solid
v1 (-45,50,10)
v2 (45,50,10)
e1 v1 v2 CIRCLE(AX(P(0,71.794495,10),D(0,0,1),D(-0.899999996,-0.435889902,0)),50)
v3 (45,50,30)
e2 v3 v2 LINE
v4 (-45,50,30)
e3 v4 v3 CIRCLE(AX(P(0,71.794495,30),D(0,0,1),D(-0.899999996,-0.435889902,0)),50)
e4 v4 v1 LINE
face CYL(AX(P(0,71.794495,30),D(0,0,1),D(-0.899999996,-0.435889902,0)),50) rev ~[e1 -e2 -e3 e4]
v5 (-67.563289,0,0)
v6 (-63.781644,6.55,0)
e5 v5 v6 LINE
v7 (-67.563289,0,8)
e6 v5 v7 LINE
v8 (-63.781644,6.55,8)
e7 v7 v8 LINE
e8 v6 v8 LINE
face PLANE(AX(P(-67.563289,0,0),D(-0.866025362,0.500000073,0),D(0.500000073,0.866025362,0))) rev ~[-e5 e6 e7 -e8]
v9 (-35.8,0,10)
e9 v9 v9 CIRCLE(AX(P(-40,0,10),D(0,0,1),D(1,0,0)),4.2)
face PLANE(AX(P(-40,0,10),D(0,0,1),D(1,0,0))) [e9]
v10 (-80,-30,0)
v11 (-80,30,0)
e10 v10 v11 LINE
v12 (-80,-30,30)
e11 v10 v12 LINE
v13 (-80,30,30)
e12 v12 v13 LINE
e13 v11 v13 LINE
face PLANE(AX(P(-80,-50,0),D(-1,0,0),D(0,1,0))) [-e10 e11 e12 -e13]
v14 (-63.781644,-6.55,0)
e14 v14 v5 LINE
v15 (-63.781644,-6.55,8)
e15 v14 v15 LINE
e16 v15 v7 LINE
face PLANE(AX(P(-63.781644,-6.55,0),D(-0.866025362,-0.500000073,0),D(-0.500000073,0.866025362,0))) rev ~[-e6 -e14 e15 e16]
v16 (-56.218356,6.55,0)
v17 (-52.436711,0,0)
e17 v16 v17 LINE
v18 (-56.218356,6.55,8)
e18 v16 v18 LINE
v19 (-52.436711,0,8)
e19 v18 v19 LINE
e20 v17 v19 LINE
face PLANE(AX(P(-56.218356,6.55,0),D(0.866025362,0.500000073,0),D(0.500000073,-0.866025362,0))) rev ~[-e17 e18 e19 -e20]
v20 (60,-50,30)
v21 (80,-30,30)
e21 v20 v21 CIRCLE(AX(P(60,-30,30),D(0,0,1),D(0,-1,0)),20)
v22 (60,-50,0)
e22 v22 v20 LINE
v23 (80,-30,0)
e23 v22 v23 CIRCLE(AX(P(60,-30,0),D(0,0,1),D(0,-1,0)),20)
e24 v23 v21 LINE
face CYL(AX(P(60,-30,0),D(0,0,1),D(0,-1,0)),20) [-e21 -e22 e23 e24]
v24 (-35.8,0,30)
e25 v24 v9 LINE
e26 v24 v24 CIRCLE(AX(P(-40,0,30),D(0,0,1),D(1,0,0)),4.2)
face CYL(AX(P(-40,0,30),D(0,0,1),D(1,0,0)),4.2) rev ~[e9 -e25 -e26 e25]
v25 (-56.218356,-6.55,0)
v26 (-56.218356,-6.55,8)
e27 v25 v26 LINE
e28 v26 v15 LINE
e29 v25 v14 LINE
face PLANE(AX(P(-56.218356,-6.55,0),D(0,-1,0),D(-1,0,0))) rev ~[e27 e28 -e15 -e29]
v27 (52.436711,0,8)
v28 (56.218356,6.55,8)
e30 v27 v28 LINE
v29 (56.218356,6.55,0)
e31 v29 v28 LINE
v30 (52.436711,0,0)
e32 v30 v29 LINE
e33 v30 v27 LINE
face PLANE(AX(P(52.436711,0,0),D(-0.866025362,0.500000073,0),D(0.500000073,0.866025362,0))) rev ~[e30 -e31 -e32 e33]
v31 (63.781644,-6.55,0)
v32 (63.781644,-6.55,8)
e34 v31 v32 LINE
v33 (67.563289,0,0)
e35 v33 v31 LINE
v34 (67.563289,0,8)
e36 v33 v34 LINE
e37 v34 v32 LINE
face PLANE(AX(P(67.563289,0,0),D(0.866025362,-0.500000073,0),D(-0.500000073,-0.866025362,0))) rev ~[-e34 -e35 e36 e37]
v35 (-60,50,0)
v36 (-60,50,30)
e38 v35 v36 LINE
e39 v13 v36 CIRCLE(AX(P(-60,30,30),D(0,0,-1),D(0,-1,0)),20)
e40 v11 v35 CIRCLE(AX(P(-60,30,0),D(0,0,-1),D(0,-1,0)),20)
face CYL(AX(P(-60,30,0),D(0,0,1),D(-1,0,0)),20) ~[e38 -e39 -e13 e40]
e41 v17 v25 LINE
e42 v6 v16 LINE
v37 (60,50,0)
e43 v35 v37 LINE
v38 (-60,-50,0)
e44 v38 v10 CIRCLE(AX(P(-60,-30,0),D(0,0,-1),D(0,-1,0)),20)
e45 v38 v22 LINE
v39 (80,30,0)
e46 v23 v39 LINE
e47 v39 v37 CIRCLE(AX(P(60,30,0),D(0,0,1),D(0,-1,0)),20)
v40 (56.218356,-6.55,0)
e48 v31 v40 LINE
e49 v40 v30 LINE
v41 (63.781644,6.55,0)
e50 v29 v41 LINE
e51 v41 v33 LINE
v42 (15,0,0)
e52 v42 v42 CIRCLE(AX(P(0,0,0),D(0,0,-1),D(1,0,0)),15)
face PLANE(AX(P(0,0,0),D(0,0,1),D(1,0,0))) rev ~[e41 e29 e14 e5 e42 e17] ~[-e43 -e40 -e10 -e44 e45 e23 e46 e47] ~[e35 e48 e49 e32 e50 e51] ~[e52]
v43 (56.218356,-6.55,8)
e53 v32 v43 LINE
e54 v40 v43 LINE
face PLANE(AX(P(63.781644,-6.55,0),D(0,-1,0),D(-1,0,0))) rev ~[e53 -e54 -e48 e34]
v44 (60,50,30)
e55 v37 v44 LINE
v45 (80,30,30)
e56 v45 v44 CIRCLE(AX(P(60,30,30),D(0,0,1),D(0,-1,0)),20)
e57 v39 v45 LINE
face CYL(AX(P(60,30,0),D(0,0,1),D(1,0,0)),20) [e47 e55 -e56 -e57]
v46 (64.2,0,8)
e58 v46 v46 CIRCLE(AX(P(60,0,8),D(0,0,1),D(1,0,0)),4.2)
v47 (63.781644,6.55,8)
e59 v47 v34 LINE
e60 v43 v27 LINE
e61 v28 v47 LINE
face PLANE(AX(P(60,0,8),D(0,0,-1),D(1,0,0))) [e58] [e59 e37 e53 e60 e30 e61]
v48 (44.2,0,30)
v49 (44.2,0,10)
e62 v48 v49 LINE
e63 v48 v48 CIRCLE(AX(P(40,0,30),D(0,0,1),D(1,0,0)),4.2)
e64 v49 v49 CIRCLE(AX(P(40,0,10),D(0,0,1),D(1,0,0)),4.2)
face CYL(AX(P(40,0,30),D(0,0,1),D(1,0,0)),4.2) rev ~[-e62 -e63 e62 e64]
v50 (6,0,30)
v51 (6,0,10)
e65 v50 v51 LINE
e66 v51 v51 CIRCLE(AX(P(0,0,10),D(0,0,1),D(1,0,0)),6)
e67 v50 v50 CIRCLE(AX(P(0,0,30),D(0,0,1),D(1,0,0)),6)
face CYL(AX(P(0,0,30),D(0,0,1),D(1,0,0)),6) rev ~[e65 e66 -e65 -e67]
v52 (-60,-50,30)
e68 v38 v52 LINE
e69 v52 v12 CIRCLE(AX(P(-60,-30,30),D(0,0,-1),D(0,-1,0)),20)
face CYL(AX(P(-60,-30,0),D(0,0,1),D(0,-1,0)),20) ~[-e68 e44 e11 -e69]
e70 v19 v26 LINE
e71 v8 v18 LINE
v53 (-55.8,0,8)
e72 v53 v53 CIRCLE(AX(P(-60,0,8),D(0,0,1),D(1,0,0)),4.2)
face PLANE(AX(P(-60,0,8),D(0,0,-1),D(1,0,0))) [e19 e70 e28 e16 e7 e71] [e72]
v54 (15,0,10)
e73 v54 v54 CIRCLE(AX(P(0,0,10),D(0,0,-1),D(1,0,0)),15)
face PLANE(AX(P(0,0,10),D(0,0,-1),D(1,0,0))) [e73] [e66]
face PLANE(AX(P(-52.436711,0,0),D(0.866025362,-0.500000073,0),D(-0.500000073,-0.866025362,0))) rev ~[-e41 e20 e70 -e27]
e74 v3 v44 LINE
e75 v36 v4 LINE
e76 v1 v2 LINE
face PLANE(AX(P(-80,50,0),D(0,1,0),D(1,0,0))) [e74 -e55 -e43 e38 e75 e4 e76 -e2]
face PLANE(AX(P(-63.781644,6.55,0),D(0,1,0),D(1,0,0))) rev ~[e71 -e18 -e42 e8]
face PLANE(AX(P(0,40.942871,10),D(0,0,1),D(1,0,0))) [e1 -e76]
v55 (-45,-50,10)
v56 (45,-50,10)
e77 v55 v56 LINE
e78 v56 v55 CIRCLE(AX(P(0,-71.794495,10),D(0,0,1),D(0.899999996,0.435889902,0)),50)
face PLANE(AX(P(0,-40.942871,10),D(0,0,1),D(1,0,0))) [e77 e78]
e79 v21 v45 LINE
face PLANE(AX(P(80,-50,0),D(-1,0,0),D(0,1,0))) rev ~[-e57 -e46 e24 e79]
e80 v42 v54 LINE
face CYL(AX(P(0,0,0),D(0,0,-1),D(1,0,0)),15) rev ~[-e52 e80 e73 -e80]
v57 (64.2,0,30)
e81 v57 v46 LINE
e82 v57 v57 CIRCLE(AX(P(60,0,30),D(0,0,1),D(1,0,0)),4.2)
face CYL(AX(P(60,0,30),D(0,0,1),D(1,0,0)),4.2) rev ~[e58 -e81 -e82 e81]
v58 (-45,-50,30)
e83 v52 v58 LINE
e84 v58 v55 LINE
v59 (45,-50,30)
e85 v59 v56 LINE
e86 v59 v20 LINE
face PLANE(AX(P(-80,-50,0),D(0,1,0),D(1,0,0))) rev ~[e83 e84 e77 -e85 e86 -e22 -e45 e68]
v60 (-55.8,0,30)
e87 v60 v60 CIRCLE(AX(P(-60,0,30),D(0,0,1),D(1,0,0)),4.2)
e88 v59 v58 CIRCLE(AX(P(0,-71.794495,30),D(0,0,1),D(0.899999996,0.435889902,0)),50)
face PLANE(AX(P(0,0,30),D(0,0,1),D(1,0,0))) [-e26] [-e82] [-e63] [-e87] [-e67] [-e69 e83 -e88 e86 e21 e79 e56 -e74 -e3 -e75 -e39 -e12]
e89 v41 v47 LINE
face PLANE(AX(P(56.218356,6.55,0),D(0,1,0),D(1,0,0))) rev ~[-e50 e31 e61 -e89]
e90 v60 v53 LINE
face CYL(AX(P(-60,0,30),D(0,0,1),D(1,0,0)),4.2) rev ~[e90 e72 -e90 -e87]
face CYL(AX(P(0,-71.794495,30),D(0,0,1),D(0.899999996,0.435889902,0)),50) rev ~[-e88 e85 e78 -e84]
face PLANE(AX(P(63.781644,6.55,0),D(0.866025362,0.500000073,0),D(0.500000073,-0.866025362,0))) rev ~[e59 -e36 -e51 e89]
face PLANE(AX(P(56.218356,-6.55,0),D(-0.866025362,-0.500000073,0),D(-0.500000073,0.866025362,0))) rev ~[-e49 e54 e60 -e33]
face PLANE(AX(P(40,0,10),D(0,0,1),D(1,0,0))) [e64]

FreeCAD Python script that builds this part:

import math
import FreeCAD as App
import Part
import Sketcher
from FreeCAD import Vector
Q = App.Units.Quantity


def edges_at(feature, points):
    """Names of the edges that pass closest to the given points."""
    edges = feature.Shape.Edges
    near = lambda p: min(range(len(edges)), key=lambda i: edges[i].distToShape(Part.Vertex(*p))[0])
    return sorted({f"Edge{near(p) + 1}" for p in points})

doc = App.newDocument("Part")
body = doc.addObject("PartDesign::Body", "Body")

sketch1 = body.newObject("Sketcher::SketchObject", "Sketch")
sketch1.AttachmentSupport = (doc.getObject("XY_Plane"), [""])
sketch1.MapMode = "FlatFace"
sketch1.addGeometry(Part.LineSegment(Vector(-80, 50, 0), Vector(-80, -50, 0)), False)
sketch1.addGeometry(Part.LineSegment(Vector(-80, -50, 0), Vector(80, -50, 0)), False)
sketch1.addGeometry(Part.LineSegment(Vector(80, -50, 0), Vector(80, 50, 0)), False)
sketch1.addGeometry(Part.LineSegment(Vector(80, 50, 0), Vector(-80, 50, 0)), False)
sketch1.addConstraint(Sketcher.Constraint("Coincident", 0, 2, 1, 1))
sketch1.addConstraint(Sketcher.Constraint("Coincident", 1, 2, 2, 1))
sketch1.addConstraint(Sketcher.Constraint("Coincident", 2, 2, 3, 1))
sketch1.addConstraint(Sketcher.Constraint("Coincident", 3, 2, 0, 1))
sketch1.addConstraint(Sketcher.Constraint("Vertical", 0))
sketch1.addConstraint(Sketcher.Constraint("Horizontal", 1))
sketch1.addConstraint(Sketcher.Constraint("Vertical", 2))
sketch1.addConstraint(Sketcher.Constraint("Horizontal", 3))
sketch1.addConstraint(Sketcher.Constraint("Symmetric", 0, 2, 2, 2, -1, 1))
sketch1.addConstraint(Sketcher.Constraint("DistanceX", 1, 1, 1, 2, Q("160 mm")))
sketch1.addConstraint(Sketcher.Constraint("DistanceY", 0, 2, 0, 1, Q("100 mm")))
pad1 = body.newObject("PartDesign::Pad", "Pad")
pad1.Profile = sketch1
pad1.Length = 30

sketch2 = body.newObject("Sketcher::SketchObject", "Sketch001")
sketch2.AttachmentSupport = (doc.getObject("XY_Plane"), [""])
sketch2.MapMode = "FlatFace"
sketch2.AttachmentOffset = App.Placement(Vector(0, 0, 30), App.Rotation())
sketch2.addGeometry(Part.Circle(Vector(0, 0, 0), Vector(0, 0, 1), 6), False)
sketch2.addGeometry(Part.Circle(Vector(60, 0, 0), Vector(0, 0, 1), 4.2), False)
sketch2.addGeometry(Part.Circle(Vector(-60, 0, 0), Vector(0, 0, 1), 4.2), False)
sketch2.addConstraint(Sketcher.Constraint("Coincident", 0, 3, -1, 1))
sketch2.addConstraint(Sketcher.Constraint("Equal", 1, 2))
sketch2.addConstraint(Sketcher.Constraint("Symmetric", 1, 3, 2, 3, -1, 1))
sketch2.addConstraint(Sketcher.Constraint("PointOnObject", 1, 3, -1))
sketch2.addConstraint(Sketcher.Constraint("Diameter", 0, Q("12 mm")))
sketch2.addConstraint(Sketcher.Constraint("Diameter", 1, Q("8.4 mm")))
sketch2.addConstraint(Sketcher.Constraint("DistanceX", -1, 1, 1, 3, Q("60 mm")))
pocket1 = body.newObject("PartDesign::Pocket", "Pocket")
pocket1.Profile = sketch2
pocket1.Length = 30

sketch3 = body.newObject("Sketcher::SketchObject", "Sketch002")
sketch3.AttachmentSupport = (doc.getObject("XY_Plane"), [""])
sketch3.MapMode = "FlatFace"
sketch3.addGeometry(Part.LineSegment(Vector(-52.436711, 0, 0), Vector(-56.218356, -6.55, 0)), False)
sketch3.addGeometry(Part.LineSegment(Vector(-56.218356, -6.55, 0), Vector(-63.781644, -6.55, 0)), False)
sketch3.addGeometry(Part.LineSegment(Vector(-63.781644, -6.55, 0), Vector(-67.563289, 0, 0)), False)
sketch3.addGeometry(Part.LineSegment(Vector(-67.563289, 0, 0), Vector(-63.781644, 6.55, 0)), False)
sketch3.addGeometry(Part.LineSegment(Vector(-63.781644, 6.55, 0), Vector(-56.218356, 6.55, 0)), False)
sketch3.addGeometry(Part.LineSegment(Vector(-56.218356, 6.55, 0), Vector(-52.436711, 0, 0)), False)
sketch3.addGeometry(Part.LineSegment(Vector(67.563289, 0, 0), Vector(63.781644, -6.55, 0)), False)
sketch3.addGeometry(Part.LineSegment(Vector(63.781644, -6.55, 0), Vector(56.218356, -6.55, 0)), False)
sketch3.addGeometry(Part.LineSegment(Vector(56.218356, -6.55, 0), Vector(52.436711, 0, 0)), False)
sketch3.addGeometry(Part.LineSegment(Vector(52.436711, 0, 0), Vector(56.218356, 6.55, 0)), False)
sketch3.addGeometry(Part.LineSegment(Vector(56.218356, 6.55, 0), Vector(63.781644, 6.55, 0)), False)
sketch3.addGeometry(Part.LineSegment(Vector(63.781644, 6.55, 0), Vector(67.563289, 0, 0)), False)
sketch3.addConstraint(Sketcher.Constraint("Coincident", 0, 2, 1, 1))
sketch3.addConstraint(Sketcher.Constraint("Coincident", 1, 2, 2, 1))
sketch3.addConstraint(Sketcher.Constraint("Coincident", 2, 2, 3, 1))
sketch3.addConstraint(Sketcher.Constraint("Coincident", 3, 2, 4, 1))
sketch3.addConstraint(Sketcher.Constraint("Coincident", 4, 2, 5, 1))
sketch3.addConstraint(Sketcher.Constraint("Coincident", 5, 2, 0, 1))
sketch3.addConstraint(Sketcher.Constraint("Coincident", 6, 2, 7, 1))
sketch3.addConstraint(Sketcher.Constraint("Coincident", 7, 2, 8, 1))
sketch3.addConstraint(Sketcher.Constraint("Coincident", 8, 2, 9, 1))
sketch3.addConstraint(Sketcher.Constraint("Coincident", 9, 2, 10, 1))
sketch3.addConstraint(Sketcher.Constraint("Coincident", 10, 2, 11, 1))
sketch3.addConstraint(Sketcher.Constraint("Coincident", 11, 2, 6, 1))
sketch3.addConstraint(Sketcher.Constraint("Horizontal", 1))
sketch3.addConstraint(Sketcher.Constraint("Horizontal", 4))
sketch3.addConstraint(Sketcher.Constraint("Horizontal", 7))
sketch3.addConstraint(Sketcher.Constraint("Horizontal", 10))
sketch3.addConstraint(Sketcher.Constraint("Symmetric", 3, 2, 6, 2, -1, 1))
sketch3.addConstraint(Sketcher.Constraint("Symmetric", 5, 2, 8, 2, -1, 1))
sketch3.addConstraint(Sketcher.Constraint("Symmetric", 0, 2, 9, 2, -1, 1))
sketch3.addConstraint(Sketcher.Constraint("Symmetric", 2, 2, 11, 2, -1, 1))
sketch3.addConstraint(Sketcher.Constraint("Symmetric", 1, 2, 6, 2, -2))
sketch3.addConstraint(Sketcher.Constraint("PointOnObject", 2, 2, -1))
sketch3.addConstraint(Sketcher.Constraint("PointOnObject", 5, 2, -1))
sketch3.addConstraint(Sketcher.Constraint("Parallel", 0, 3))
sketch3.addConstraint(Sketcher.Constraint("Parallel", 2, 5))
sketch3.addConstraint(Sketcher.Constraint("Parallel", 5, 8))
sketch3.addConstraint(Sketcher.Constraint("Parallel", 8, 11))
sketch3.addConstraint(Sketcher.Constraint("Angle", 0, Q("-120.000005 deg")))
sketch3.addConstraint(Sketcher.Constraint("DistanceX", 0, 2, 6, 2, Q("120 mm")))
sketch3.addConstraint(Sketcher.Constraint("DistanceY", 1, 2, 3, 2, Q("13.1 mm")))
sketch3.addConstraint(Sketcher.Constraint("DistanceX", 1, 2, 1, 1, Q("7.563288 mm")))
pocket2 = body.newObject("PartDesign::Pocket", "Pocket001")
pocket2.Profile = sketch3
pocket2.Length = 8
pocket2.Reversed = True

sketch4 = body.newObject("Sketcher::SketchObject", "Sketch003")
sketch4.AttachmentSupport = (doc.getObject("XY_Plane"), [""])
sketch4.MapMode = "FlatFace"
sketch4.addGeometry(Part.Circle(Vector(0, 0, 0), Vector(0, 0, 1), 15), False)
sketch4.addConstraint(Sketcher.Constraint("Coincident", 0, 3, -1, 1))
sketch4.addConstraint(Sketcher.Constraint("Diameter", 0, Q("30 mm")))
pocket3 = body.newObject("PartDesign::Pocket", "Pocket002")
pocket3.Profile = sketch4
pocket3.Length = 10
pocket3.Reversed = True
doc.recompute()

fillet = body.newObject("PartDesign::Fillet", "Fillet")
fillet.Base = (pocket3, edges_at(pocket3, [(-80, 50, 15)]))
fillet.Radius = 20

sketch5 = body.newObject("Sketcher::SketchObject", "Sketch004")
sketch5.AttachmentSupport = (doc.getObject("XY_Plane"), [""])
sketch5.MapMode = "FlatFace"
sketch5.AttachmentOffset = App.Placement(Vector(0, 0, 30), App.Rotation())
sketch5.addGeometry(Part.ArcOfCircle(Part.Circle(Vector(0, 71.794495, 0), Vector(0, 0, 1), 50), math.radians(-154.158067), math.radians(-25.841933)), False)
sketch5.addGeometry(Part.LineSegment(Vector(45, 50, 0), Vector(-45, 50, 0)), False)
sketch5.addGeometry(Part.ArcOfCircle(Part.Circle(Vector(0, -71.794495, 0), Vector(0, 0, 1), 50), math.radians(25.841933), math.radians(154.158067)), False)
sketch5.addGeometry(Part.LineSegment(Vector(-45, -50, 0), Vector(45, -50, 0)), False)
sketch5.addConstraint(Sketcher.Constraint("Coincident", 0, 1, 1, 2))
sketch5.addConstraint(Sketcher.Constraint("Coincident", 1, 1, 0, 2))
sketch5.addConstraint(Sketcher.Constraint("Coincident", 2, 1, 3, 2))
sketch5.addConstraint(Sketcher.Constraint("Coincident", 3, 1, 2, 2))
sketch5.addConstraint(Sketcher.Constraint("Horizontal", 1))
sketch5.addConstraint(Sketcher.Constraint("Horizontal", 3))
sketch5.addConstraint(Sketcher.Constraint("Equal", 0, 2))
sketch5.addConstraint(Sketcher.Constraint("Symmetric", 0, 3, 2, 3, -1, 1))
sketch5.addConstraint(Sketcher.Constraint("Symmetric", 1, 1, 2, 1, -1))
sketch5.addConstraint(Sketcher.Constraint("Radius", 0, Q("50 mm")))
sketch5.addConstraint(Sketcher.Constraint("DistanceX", 1, 2, 1, 1, Q("90 mm")))
sketch5.addConstraint(Sketcher.Constraint("DistanceY", -1, 1, 0, 1, Q("50 mm")))
pocket4 = body.newObject("PartDesign::Pocket", "Pocket003")
pocket4.Profile = sketch5
pocket4.Length = 20
doc.recompute()

fillet2 = body.newObject("PartDesign::Fillet", "Fillet001")
fillet2.Base = (pocket4, edges_at(pocket4, [(80, -50, 15)]))
fillet2.Radius = 20
doc.recompute()

fillet3 = body.newObject("PartDesign::Fillet", "Fillet002")
fillet3.Base = (fillet2, edges_at(fillet2, [(80, 50, 15)]))
fillet3.Radius = 20
doc.recompute()

fillet4 = body.newObject("PartDesign::Fillet", "Fillet003")
fillet4.Base = (fillet3, edges_at(fillet3, [(-80, -50, 15)]))
fillet4.Radius = 20

sketch6 = body.newObject("Sketcher::SketchObject", "Sketch005")
sketch6.AttachmentSupport = (doc.getObject("XY_Plane"), [""])
sketch6.MapMode = "FlatFace"
sketch6.AttachmentOffset = App.Placement(Vector(0, 0, 30), App.Rotation())
sketch6.addGeometry(Part.Circle(Vector(-40, 0, 0), Vector(0, 0, 1), 4.2), False)
sketch6.addGeometry(Part.Circle(Vector(40, 0, 0), Vector(0, 0, 1), 4.2), False)
sketch6.addConstraint(Sketcher.Constraint("Equal", 0, 1))
sketch6.addConstraint(Sketcher.Constraint("Symmetric", 0, 3, 1, 3, -1, 1))
sketch6.addConstraint(Sketcher.Constraint("PointOnObject", 0, 3, -1))
sketch6.addConstraint(Sketcher.Constraint("Diameter", 0, Q("8.4 mm")))
sketch6.addConstraint(Sketcher.Constraint("DistanceX", 0, 3, -1, 1, Q("40 mm")))
pocket5 = body.newObject("PartDesign::Pocket", "Pocket004")
pocket5.Profile = sketch6
pocket5.Length = 20

doc.recompute()
